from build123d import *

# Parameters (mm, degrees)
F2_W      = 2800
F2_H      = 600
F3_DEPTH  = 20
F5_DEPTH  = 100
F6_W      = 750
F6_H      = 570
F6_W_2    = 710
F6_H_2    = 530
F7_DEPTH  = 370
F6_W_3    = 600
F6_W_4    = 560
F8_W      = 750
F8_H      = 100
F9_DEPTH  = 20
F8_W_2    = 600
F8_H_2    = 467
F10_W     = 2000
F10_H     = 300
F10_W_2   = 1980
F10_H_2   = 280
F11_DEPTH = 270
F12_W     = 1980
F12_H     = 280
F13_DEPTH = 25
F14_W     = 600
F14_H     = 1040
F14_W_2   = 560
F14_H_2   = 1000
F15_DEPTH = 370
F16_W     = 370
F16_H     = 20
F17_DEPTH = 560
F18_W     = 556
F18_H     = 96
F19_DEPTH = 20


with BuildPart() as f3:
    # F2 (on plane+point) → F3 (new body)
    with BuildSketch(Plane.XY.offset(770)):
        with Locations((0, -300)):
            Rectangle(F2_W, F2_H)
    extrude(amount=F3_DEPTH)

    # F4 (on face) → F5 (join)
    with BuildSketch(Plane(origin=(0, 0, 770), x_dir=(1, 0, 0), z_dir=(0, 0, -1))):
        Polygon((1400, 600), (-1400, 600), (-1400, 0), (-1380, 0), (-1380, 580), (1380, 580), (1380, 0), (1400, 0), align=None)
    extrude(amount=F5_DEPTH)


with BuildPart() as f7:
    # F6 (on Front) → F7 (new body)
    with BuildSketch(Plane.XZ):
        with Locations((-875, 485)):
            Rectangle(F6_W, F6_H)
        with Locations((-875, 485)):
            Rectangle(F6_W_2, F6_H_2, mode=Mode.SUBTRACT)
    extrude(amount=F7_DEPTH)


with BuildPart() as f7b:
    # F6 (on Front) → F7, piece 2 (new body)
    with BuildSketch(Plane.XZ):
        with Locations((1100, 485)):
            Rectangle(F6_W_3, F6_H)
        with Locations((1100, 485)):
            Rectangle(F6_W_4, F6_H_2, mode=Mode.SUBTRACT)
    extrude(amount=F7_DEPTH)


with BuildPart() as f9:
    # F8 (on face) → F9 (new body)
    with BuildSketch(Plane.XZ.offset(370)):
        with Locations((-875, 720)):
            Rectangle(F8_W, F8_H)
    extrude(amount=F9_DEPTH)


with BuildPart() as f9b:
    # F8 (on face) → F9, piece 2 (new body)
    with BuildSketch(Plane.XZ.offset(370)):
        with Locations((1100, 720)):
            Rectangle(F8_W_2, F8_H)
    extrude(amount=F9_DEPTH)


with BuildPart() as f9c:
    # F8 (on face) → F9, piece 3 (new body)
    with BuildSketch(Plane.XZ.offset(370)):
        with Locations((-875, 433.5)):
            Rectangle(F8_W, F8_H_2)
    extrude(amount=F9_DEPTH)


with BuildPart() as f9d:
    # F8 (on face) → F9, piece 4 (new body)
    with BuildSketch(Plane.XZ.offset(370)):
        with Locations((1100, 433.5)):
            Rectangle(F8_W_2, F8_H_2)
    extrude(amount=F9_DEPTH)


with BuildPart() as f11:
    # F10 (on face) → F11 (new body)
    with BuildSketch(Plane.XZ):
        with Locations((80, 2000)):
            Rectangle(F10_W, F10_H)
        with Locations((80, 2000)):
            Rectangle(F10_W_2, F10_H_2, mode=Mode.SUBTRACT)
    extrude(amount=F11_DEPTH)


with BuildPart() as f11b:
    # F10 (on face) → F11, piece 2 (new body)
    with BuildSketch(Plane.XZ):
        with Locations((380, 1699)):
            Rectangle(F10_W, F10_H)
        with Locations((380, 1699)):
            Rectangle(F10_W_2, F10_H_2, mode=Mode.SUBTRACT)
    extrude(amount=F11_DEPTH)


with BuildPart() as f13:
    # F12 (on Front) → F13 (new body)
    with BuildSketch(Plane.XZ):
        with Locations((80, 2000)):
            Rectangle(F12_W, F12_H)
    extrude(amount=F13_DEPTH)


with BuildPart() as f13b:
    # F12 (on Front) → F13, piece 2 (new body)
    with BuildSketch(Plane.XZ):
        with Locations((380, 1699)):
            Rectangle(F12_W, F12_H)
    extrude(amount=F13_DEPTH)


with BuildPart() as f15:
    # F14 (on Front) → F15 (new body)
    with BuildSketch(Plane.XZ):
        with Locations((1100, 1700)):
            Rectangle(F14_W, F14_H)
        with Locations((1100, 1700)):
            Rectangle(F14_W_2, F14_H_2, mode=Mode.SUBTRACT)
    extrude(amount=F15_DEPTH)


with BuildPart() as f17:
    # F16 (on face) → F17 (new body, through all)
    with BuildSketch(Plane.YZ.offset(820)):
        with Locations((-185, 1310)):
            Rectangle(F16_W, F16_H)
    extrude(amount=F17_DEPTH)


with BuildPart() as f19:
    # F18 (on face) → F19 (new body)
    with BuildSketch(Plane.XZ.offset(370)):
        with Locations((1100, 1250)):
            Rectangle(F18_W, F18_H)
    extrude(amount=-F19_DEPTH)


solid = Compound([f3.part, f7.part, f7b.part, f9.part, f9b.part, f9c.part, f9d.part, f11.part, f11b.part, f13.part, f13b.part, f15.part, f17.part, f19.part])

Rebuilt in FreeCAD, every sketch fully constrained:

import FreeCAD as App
import Part
import Sketcher
from FreeCAD import Vector


def add_polygon(sketch, points):
    """Adds a closed chain of lines whose ends are joined by coincident constraints."""
    first, n = sketch.GeometryCount, len(points)
    for a, b in zip(points, points[1:] + points[:1]):
        sketch.addGeometry(Part.LineSegment(App.Vector(*a, 0), App.Vector(*b, 0)), False)
    for i in range(n):
        sketch.addConstraint(Sketcher.Constraint("Coincident", first + i, 2, first + (i + 1) % n, 1))

doc = App.newDocument("Part")
body = doc.addObject("PartDesign::Body", "Body")

# Sketch on XY plane
sketch1 = body.newObject("Sketcher::SketchObject", "Sketch")
sketch1.AttachmentSupport = (doc.getObject("XY_Plane"), [""])
sketch1.MapMode = "FlatFace"
sketch1.AttachmentOffset = App.Placement(Vector(0, 0, 770), App.Rotation())
add_polygon(sketch1, [(-1400, 0), (-1400, -600), (1400, -600), (1400, 0)])  # lines 0-3
sketch1.addConstraint(Sketcher.Constraint("Vertical", 0))
sketch1.addConstraint(Sketcher.Constraint("Horizontal", 1))
sketch1.addConstraint(Sketcher.Constraint("Vertical", 2))
sketch1.addConstraint(Sketcher.Constraint("Horizontal", 3))
sketch1.addConstraint(Sketcher.Constraint("Symmetric", 2, 2, 3, 2, -1, 1))
sketch1.addConstraint(Sketcher.Constraint("DistanceX", 1, 1, 1, 2, 2800.0))
sketch1.addConstraint(Sketcher.Constraint("DistanceY", 0, 2, 0, 1, 600.0))
pad1 = body.newObject("PartDesign::Pad", "Pad")
pad1.Profile = sketch1
pad1.Length = 20

# Sketch on XY plane
sketch2 = body.newObject("Sketcher::SketchObject", "Sketch001")
sketch2.AttachmentSupport = (doc.getObject("XY_Plane"), [""])
sketch2.MapMode = "FlatFace"
sketch2.AttachmentOffset = App.Placement(Vector(0, 0, 770), App.Rotation())
add_polygon(sketch2, [(1400, -600), (-1400, -600), (-1400, 0), (-1380, 0), (-1380, -580), (1380, -580), (1380, 0), (1400, 0)])  # lines 0-7
sketch2.addConstraint(Sketcher.Constraint("Horizontal", 0))
sketch2.addConstraint(Sketcher.Constraint("Vertical", 1))
sketch2.addConstraint(Sketcher.Constraint("Horizontal", 2))
sketch2.addConstraint(Sketcher.Constraint("Vertical", 3))
sketch2.addConstraint(Sketcher.Constraint("Horizontal", 4))
sketch2.addConstraint(Sketcher.Constraint("Vertical", 5))
sketch2.addConstraint(Sketcher.Constraint("Horizontal", 6))
sketch2.addConstraint(Sketcher.Constraint("Vertical", 7))
sketch2.addConstraint(Sketcher.Constraint("Symmetric", 2, 2, 5, 2, -1, 1))
sketch2.addConstraint(Sketcher.Constraint("Symmetric", 1, 2, 6, 2, -2))
sketch2.addConstraint(Sketcher.Constraint("DistanceX", 0, 2, 0, 1, 2800.0))
sketch2.addConstraint(Sketcher.Constraint("DistanceX", 2, 1, 2, 2, 20.0))
sketch2.addConstraint(Sketcher.Constraint("DistanceY", 1, 1, 1, 2, 600.0))
sketch2.addConstraint(Sketcher.Constraint("DistanceY", 3, 2, 3, 1, 580.0))
pad2 = body.newObject("PartDesign::Pad", "Pad001")
pad2.Profile = sketch2
pad2.Length = 100
pad2.Reversed = True
body2 = doc.addObject("PartDesign::Body", "Body001")

# Sketch on XZ plane
sketch3 = body2.newObject("Sketcher::SketchObject", "Sketch002")
sketch3.AttachmentSupport = (doc.getObject("XZ_Plane001"), [""])
sketch3.MapMode = "FlatFace"
add_polygon(sketch3, [(-1250, 770), (-1250, 200), (-500, 200), (-500, 770)])  # lines 0-3
add_polygon(sketch3, [(-520, 220), (-1230, 220), (-1230, 750), (-520, 750)])  # lines 4-7
sketch3.addConstraint(Sketcher.Constraint("Vertical", 0))
sketch3.addConstraint(Sketcher.Constraint("Horizontal", 1))
sketch3.addConstraint(Sketcher.Constraint("Vertical", 2))
sketch3.addConstraint(Sketcher.Constraint("Horizontal", 3))
sketch3.addConstraint(Sketcher.Constraint("Horizontal", 4))
sketch3.addConstraint(Sketcher.Constraint("Vertical", 5))
sketch3.addConstraint(Sketcher.Constraint("Horizontal", 6))
sketch3.addConstraint(Sketcher.Constraint("Vertical", 7))
sketch3.addConstraint(Sketcher.Constraint("DistanceX", 1, 1, 1, 2, 750.0))
sketch3.addConstraint(Sketcher.Constraint("DistanceX", 4, 2, 4, 1, 710.0))
sketch3.addConstraint(Sketcher.Constraint("DistanceY", 0, 2, 0, 1, 570.0))
sketch3.addConstraint(Sketcher.Constraint("DistanceY", 5, 1, 5, 2, 530.0))
sketch3.addConstraint(Sketcher.Constraint("DistanceX", 0, 2, -1, 1, 1250.0))
sketch3.addConstraint(Sketcher.Constraint("DistanceY", -1, 1, 0, 2, 200.0))
sketch3.addConstraint(Sketcher.Constraint("DistanceX", 4, 2, -1, 1, 1230.0))
sketch3.addConstraint(Sketcher.Constraint("DistanceY", -1, 1, 4, 2, 220.0))
pad3 = body2.newObject("PartDesign::Pad", "Pad002")
pad3.Profile = sketch3
pad3.Length = 370
body3 = doc.addObject("PartDesign::Body", "Body002")

# Sketch on XZ plane
sketch4 = body3.newObject("Sketcher::SketchObject", "Sketch003")
sketch4.AttachmentSupport = (doc.getObject("XZ_Plane002"), [""])
sketch4.MapMode = "FlatFace"
add_polygon(sketch4, [(800, 770), (800, 200), (1400, 200), (1400, 770)])  # lines 0-3
add_polygon(sketch4, [(1380, 220), (820, 220), (820, 750), (1380, 750)])  # lines 4-7
sketch4.addConstraint(Sketcher.Constraint("Vertical", 0))
sketch4.addConstraint(Sketcher.Constraint("Horizontal", 1))
sketch4.addConstraint(Sketcher.Constraint("Vertical", 2))
sketch4.addConstraint(Sketcher.Constraint("Horizontal", 3))
sketch4.addConstraint(Sketcher.Constraint("Horizontal", 4))
sketch4.addConstraint(Sketcher.Constraint("Vertical", 5))
sketch4.addConstraint(Sketcher.Constraint("Horizontal", 6))
sketch4.addConstraint(Sketcher.Constraint("Vertical", 7))
sketch4.addConstraint(Sketcher.Constraint("DistanceX", 1, 1, 1, 2, 600.0))
sketch4.addConstraint(Sketcher.Constraint("DistanceX", 4, 2, 4, 1, 560.0))
sketch4.addConstraint(Sketcher.Constraint("DistanceY", 0, 2, 0, 1, 570.0))
sketch4.addConstraint(Sketcher.Constraint("DistanceY", 5, 1, 5, 2, 530.0))
sketch4.addConstraint(Sketcher.Constraint("DistanceX", -1, 1, 0, 2, 800.0))
sketch4.addConstraint(Sketcher.Constraint("DistanceY", -1, 1, 0, 2, 200.0))
sketch4.addConstraint(Sketcher.Constraint("DistanceX", -1, 1, 4, 2, 820.0))
sketch4.addConstraint(Sketcher.Constraint("DistanceY", -1, 1, 4, 2, 220.0))
pad4 = body3.newObject("PartDesign::Pad", "Pad003")
pad4.Profile = sketch4
pad4.Length = 370
body4 = doc.addObject("PartDesign::Body", "Body003")

# Sketch on XZ plane
sketch5 = body4.newObject("Sketcher::SketchObject", "Sketch004")
sketch5.AttachmentSupport = (doc.getObject("XZ_Plane003"), [""])
sketch5.MapMode = "FlatFace"
sketch5.AttachmentOffset = App.Placement(Vector(0, 0, 370), App.Rotation())
add_polygon(sketch5, [(-1250, 770), (-1250, 670), (-500, 670), (-500, 770)])  # lines 0-3
sketch5.addConstraint(Sketcher.Constraint("Vertical", 0))
sketch5.addConstraint(Sketcher.Constraint("Horizontal", 1))
sketch5.addConstraint(Sketcher.Constraint("Vertical", 2))
sketch5.addConstraint(Sketcher.Constraint("Horizontal", 3))
sketch5.addConstraint(Sketcher.Constraint("DistanceX", 1, 1, 1, 2, 750.0))
sketch5.addConstraint(Sketcher.Constraint("DistanceY", 0, 2, 0, 1, 100.0))
sketch5.addConstraint(Sketcher.Constraint("DistanceX", 0, 2, -1, 1, 1250.0))
sketch5.addConstraint(Sketcher.Constraint("DistanceY", -1, 1, 0, 2, 670.0))
pad5 = body4.newObject("PartDesign::Pad", "Pad004")
pad5.Profile = sketch5
pad5.Length = 20
body5 = doc.addObject("PartDesign::Body", "Body004")

# Sketch on XZ plane
sketch6 = body5.newObject("Sketcher::SketchObject", "Sketch005")
sketch6.AttachmentSupport = (doc.getObject("XZ_Plane004"), [""])
sketch6.MapMode = "FlatFace"
sketch6.AttachmentOffset = App.Placement(Vector(0, 0, 370), App.Rotation())
add_polygon(sketch6, [(800, 770), (800, 670), (1400, 670), (1400, 770)])  # lines 0-3
sketch6.addConstraint(Sketcher.Constraint("Vertical", 0))
sketch6.addConstraint(Sketcher.Constraint("Horizontal", 1))
sketch6.addConstraint(Sketcher.Constraint("Vertical", 2))
sketch6.addConstraint(Sketcher.Constraint("Horizontal", 3))
sketch6.addConstraint(Sketcher.Constraint("DistanceX", 1, 1, 1, 2, 600.0))
sketch6.addConstraint(Sketcher.Constraint("DistanceY", 0, 2, 0, 1, 100.0))
sketch6.addConstraint(Sketcher.Constraint("DistanceX", -1, 1, 0, 2, 800.0))
sketch6.addConstraint(Sketcher.Constraint("DistanceY", -1, 1, 0, 2, 670.0))
pad6 = body5.newObject("PartDesign::Pad", "Pad005")
pad6.Profile = sketch6
pad6.Length = 20
body6 = doc.addObject("PartDesign::Body", "Body005")

# Sketch on XZ plane
sketch7 = body6.newObject("Sketcher::SketchObject", "Sketch006")
sketch7.AttachmentSupport = (doc.getObject("XZ_Plane005"), [""])
sketch7.MapMode = "FlatFace"
sketch7.AttachmentOffset = App.Placement(Vector(0, 0, 370), App.Rotation())
add_polygon(sketch7, [(-1250, 667), (-1250, 200), (-500, 200), (-500, 667)])  # lines 0-3
sketch7.addConstraint(Sketcher.Constraint("Vertical", 0))
sketch7.addConstraint(Sketcher.Constraint("Horizontal", 1))
sketch7.addConstraint(Sketcher.Constraint("Vertical", 2))
sketch7.addConstraint(Sketcher.Constraint("Horizontal", 3))
sketch7.addConstraint(Sketcher.Constraint("DistanceX", 1, 1, 1, 2, 750.0))
sketch7.addConstraint(Sketcher.Constraint("DistanceY", 0, 2, 0, 1, 467.0))
sketch7.addConstraint(Sketcher.Constraint("DistanceX", 0, 2, -1, 1, 1250.0))
sketch7.addConstraint(Sketcher.Constraint("DistanceY", -1, 1, 0, 2, 200.0))
pad7 = body6.newObject("PartDesign::Pad", "Pad006")
pad7.Profile = sketch7
pad7.Length = 20
body7 = doc.addObject("PartDesign::Body", "Body006")

# Sketch on XZ plane
sketch8 = body7.newObject("Sketcher::SketchObject", "Sketch007")
sketch8.AttachmentSupport = (doc.getObject("XZ_Plane006"), [""])
sketch8.MapMode = "FlatFace"
sketch8.AttachmentOffset = App.Placement(Vector(0, 0, 370), App.Rotation())
add_polygon(sketch8, [(800, 667), (800, 200), (1400, 200), (1400, 667)])  # lines 0-3
sketch8.addConstraint(Sketcher.Constraint("Vertical", 0))
sketch8.addConstraint(Sketcher.Constraint("Horizontal", 1))
sketch8.addConstraint(Sketcher.Constraint("Vertical", 2))
sketch8.addConstraint(Sketcher.Constraint("Horizontal", 3))
sketch8.addConstraint(Sketcher.Constraint("DistanceX", 1, 1, 1, 2, 600.0))
sketch8.addConstraint(Sketcher.Constraint("DistanceY", 0, 2, 0, 1, 467.0))
sketch8.addConstraint(Sketcher.Constraint("DistanceX", -1, 1, 0, 2, 800.0))
sketch8.addConstraint(Sketcher.Constraint("DistanceY", -1, 1, 0, 2, 200.0))
pad8 = body7.newObject("PartDesign::Pad", "Pad007")
pad8.Profile = sketch8
pad8.Length = 20
body8 = doc.addObject("PartDesign::Body", "Body007")

# Sketch on XZ plane
sketch9 = body8.newObject("Sketcher::SketchObject", "Sketch008")
sketch9.AttachmentSupport = (doc.getObject("XZ_Plane007"), [""])
sketch9.MapMode = "FlatFace"
add_polygon(sketch9, [(-920, 2150), (-920, 1850), (1080, 1850), (1080, 2150)])  # lines 0-3
add_polygon(sketch9, [(1070, 1860), (-910, 1860), (-910, 2140), (1070, 2140)])  # lines 4-7
sketch9.addConstraint(Sketcher.Constraint("Vertical", 0))
sketch9.addConstraint(Sketcher.Constraint("Horizontal", 1))
sketch9.addConstraint(Sketcher.Constraint("Vertical", 2))
sketch9.addConstraint(Sketcher.Constraint("Horizontal", 3))
sketch9.addConstraint(Sketcher.Constraint("Horizontal", 4))
sketch9.addConstraint(Sketcher.Constraint("Vertical", 5))
sketch9.addConstraint(Sketcher.Constraint("Horizontal", 6))
sketch9.addConstraint(Sketcher.Constraint("Vertical", 7))
sketch9.addConstraint(Sketcher.Constraint("DistanceX", 1, 1, 1, 2, 2000.0))
sketch9.addConstraint(Sketcher.Constraint("DistanceX", 4, 2, 4, 1, 1980.0))
sketch9.addConstraint(Sketcher.Constraint("DistanceY", 0, 2, 0, 1, 300.0))
sketch9.addConstraint(Sketcher.Constraint("DistanceY", 5, 1, 5, 2, 280.0))
sketch9.addConstraint(Sketcher.Constraint("DistanceX", 0, 2, -1, 1, 920.0))
sketch9.addConstraint(Sketcher.Constraint("DistanceY", -1, 1, 0, 2, 1850.0))
sketch9.addConstraint(Sketcher.Constraint("DistanceX", 4, 2, -1, 1, 910.0))
sketch9.addConstraint(Sketcher.Constraint("DistanceY", -1, 1, 4, 2, 1860.0))
pad9 = body8.newObject("PartDesign::Pad", "Pad008")
pad9.Profile = sketch9
pad9.Length = 270
body9 = doc.addObject("PartDesign::Body", "Body008")

# Sketch on XZ plane
sketch10 = body9.newObject("Sketcher::SketchObject", "Sketch009")
sketch10.AttachmentSupport = (doc.getObject("XZ_Plane008"), [""])
sketch10.MapMode = "FlatFace"
add_polygon(sketch10, [(-620, 1849), (-620, 1549), (1380, 1549), (1380, 1849)])  # lines 0-3
add_polygon(sketch10, [(1370, 1559), (-610, 1559), (-610, 1839), (1370, 1839)])  # lines 4-7
sketch10.addConstraint(Sketcher.Constraint("Vertical", 0))
sketch10.addConstraint(Sketcher.Constraint("Horizontal", 1))
sketch10.addConstraint(Sketcher.Constraint("Vertical", 2))
sketch10.addConstraint(Sketcher.Constraint("Horizontal", 3))
sketch10.addConstraint(Sketcher.Constraint("Horizontal", 4))
sketch10.addConstraint(Sketcher.Constraint("Vertical", 5))
sketch10.addConstraint(Sketcher.Constraint("Horizontal", 6))
sketch10.addConstraint(Sketcher.Constraint("Vertical", 7))
sketch10.addConstraint(Sketcher.Constraint("DistanceX", 1, 1, 1, 2, 2000.0))
sketch10.addConstraint(Sketcher.Constraint("DistanceX", 4, 2, 4, 1, 1980.0))
sketch10.addConstraint(Sketcher.Constraint("DistanceY", 0, 2, 0, 1, 300.0))
sketch10.addConstraint(Sketcher.Constraint("DistanceY", 5, 1, 5, 2, 280.0))
sketch10.addConstraint(Sketcher.Constraint("DistanceX", 0, 2, -1, 1, 620.0))
sketch10.addConstraint(Sketcher.Constraint("DistanceY", -1, 1, 0, 2, 1549.0))
sketch10.addConstraint(Sketcher.Constraint("DistanceX", 4, 2, -1, 1, 610.0))
sketch10.addConstraint(Sketcher.Constraint("DistanceY", -1, 1, 4, 2, 1559.0))
pad10 = body9.newObject("PartDesign::Pad", "Pad009")
pad10.Profile = sketch10
pad10.Length = 270
body10 = doc.addObject("PartDesign::Body", "Body009")

# Sketch on XZ plane
sketch11 = body10.newObject("Sketcher::SketchObject", "Sketch010")
sketch11.AttachmentSupport = (doc.getObject("XZ_Plane009"), [""])
sketch11.MapMode = "FlatFace"
add_polygon(sketch11, [(-910, 2140), (-910, 1860), (1070, 1860), (1070, 2140)])  # lines 0-3
sketch11.addConstraint(Sketcher.Constraint("Vertical", 0))
sketch11.addConstraint(Sketcher.Constraint("Horizontal", 1))
sketch11.addConstraint(Sketcher.Constraint("Vertical", 2))
sketch11.addConstraint(Sketcher.Constraint("Horizontal", 3))
sketch11.addConstraint(Sketcher.Constraint("DistanceX", 1, 1, 1, 2, 1980.0))
sketch11.addConstraint(Sketcher.Constraint("DistanceY", 0, 2, 0, 1, 280.0))
sketch11.addConstraint(Sketcher.Constraint("DistanceX", 0, 2, -1, 1, 910.0))
sketch11.addConstraint(Sketcher.Constraint("DistanceY", -1, 1, 0, 2, 1860.0))
pad11 = body10.newObject("PartDesign::Pad", "Pad010")
pad11.Profile = sketch11
pad11.Length = 25
body11 = doc.addObject("PartDesign::Body", "Body010")

# Sketch on XZ plane
sketch12 = body11.newObject("Sketcher::SketchObject", "Sketch011")
sketch12.AttachmentSupport = (doc.getObject("XZ_Plane010"), [""])
sketch12.MapMode = "FlatFace"
add_polygon(sketch12, [(-610, 1839), (-610, 1559), (1370, 1559), (1370, 1839)])  # lines 0-3
sketch12.addConstraint(Sketcher.Constraint("Vertical", 0))
sketch12.addConstraint(Sketcher.Constraint("Horizontal", 1))
sketch12.addConstraint(Sketcher.Constraint("Vertical", 2))
sketch12.addConstraint(Sketcher.Constraint("Horizontal", 3))
sketch12.addConstraint(Sketcher.Constraint("DistanceX", 1, 1, 1, 2, 1980.0))
sketch12.addConstraint(Sketcher.Constraint("DistanceY", 0, 2, 0, 1, 280.0))
sketch12.addConstraint(Sketcher.Constraint("DistanceX", 0, 2, -1, 1, 610.0))
sketch12.addConstraint(Sketcher.Constraint("DistanceY", -1, 1, 0, 2, 1559.0))
pad12 = body11.newObject("PartDesign::Pad", "Pad011")
pad12.Profile = sketch12
pad12.Length = 25
body12 = doc.addObject("PartDesign::Body", "Body011")

# Sketch on XZ plane
sketch13 = body12.newObject("Sketcher::SketchObject", "Sketch012")
sketch13.AttachmentSupport = (doc.getObject("XZ_Plane011"), [""])
sketch13.MapMode = "FlatFace"
add_polygon(sketch13, [(800, 2220), (800, 1180), (1400, 1180), (1400, 2220)])  # lines 0-3
add_polygon(sketch13, [(1380, 1200), (820, 1200), (820, 2200), (1380, 2200)])  # lines 4-7
sketch13.addConstraint(Sketcher.Constraint("Vertical", 0))
sketch13.addConstraint(Sketcher.Constraint("Horizontal", 1))
sketch13.addConstraint(Sketcher.Constraint("Vertical", 2))
sketch13.addConstraint(Sketcher.Constraint("Horizontal", 3))
sketch13.addConstraint(Sketcher.Constraint("Horizontal", 4))
sketch13.addConstraint(Sketcher.Constraint("Vertical", 5))
sketch13.addConstraint(Sketcher.Constraint("Horizontal", 6))
sketch13.addConstraint(Sketcher.Constraint("Vertical", 7))
sketch13.addConstraint(Sketcher.Constraint("DistanceX", 1, 1, 1, 2, 600.0))
sketch13.addConstraint(Sketcher.Constraint("DistanceX", 4, 2, 4, 1, 560.0))
sketch13.addConstraint(Sketcher.Constraint("DistanceY", 0, 2, 0, 1, 1040.0))
sketch13.addConstraint(Sketcher.Constraint("DistanceY", 5, 1, 5, 2, 1000.0))
sketch13.addConstraint(Sketcher.Constraint("DistanceX", -1, 1, 0, 2, 800.0))
sketch13.addConstraint(Sketcher.Constraint("DistanceY", -1, 1, 0, 2, 1180.0))
sketch13.addConstraint(Sketcher.Constraint("DistanceX", -1, 1, 4, 2, 820.0))
sketch13.addConstraint(Sketcher.Constraint("DistanceY", -1, 1, 4, 2, 1200.0))
pad13 = body12.newObject("PartDesign::Pad", "Pad012")
pad13.Profile = sketch13
pad13.Length = 370
body13 = doc.addObject("PartDesign::Body", "Body012")

# Sketch on YZ plane
sketch14 = body13.newObject("Sketcher::SketchObject", "Sketch013")
sketch14.AttachmentSupport = (doc.getObject("YZ_Plane012"), [""])
sketch14.MapMode = "FlatFace"
sketch14.AttachmentOffset = App.Placement(Vector(0, 0, 820), App.Rotation())
add_polygon(sketch14, [(-370, 1320), (-370, 1300), (0, 1300), (0, 1320)])  # lines 0-3
sketch14.addConstraint(Sketcher.Constraint("Vertical", 0))
sketch14.addConstraint(Sketcher.Constraint("Horizontal", 1))
sketch14.addConstraint(Sketcher.Constraint("Vertical", 2))
sketch14.addConstraint(Sketcher.Constraint("Horizontal", 3))
sketch14.addConstraint(Sketcher.Constraint("PointOnObject", 1, 2, -2))
sketch14.addConstraint(Sketcher.Constraint("DistanceX", 1, 1, 1, 2, 370.0))
sketch14.addConstraint(Sketcher.Constraint("DistanceY", 0, 2, 0, 1, 20.0))
sketch14.addConstraint(Sketcher.Constraint("DistanceY", -1, 1, 0, 2, 1300.0))
pad14 = body13.newObject("PartDesign::Pad", "Pad013")
pad14.Profile = sketch14
pad14.Length = 560
body14 = doc.addObject("PartDesign::Body", "Body013")

# Sketch on XZ plane
sketch15 = body14.newObject("Sketcher::SketchObject", "Sketch014")
sketch15.AttachmentSupport = (doc.getObject("XZ_Plane013"), [""])
sketch15.MapMode = "FlatFace"
sketch15.AttachmentOffset = App.Placement(Vector(0, 0, 370), App.Rotation())
add_polygon(sketch15, [(822, 1298), (822, 1202), (1378, 1202), (1378, 1298)])  # lines 0-3
sketch15.addConstraint(Sketcher.Constraint("Vertical", 0))
sketch15.addConstraint(Sketcher.Constraint("Horizontal", 1))
sketch15.addConstraint(Sketcher.Constraint("Vertical", 2))
sketch15.addConstraint(Sketcher.Constraint("Horizontal", 3))
sketch15.addConstraint(Sketcher.Constraint("DistanceX", 1, 1, 1, 2, 556.0))
sketch15.addConstraint(Sketcher.Constraint("DistanceY", 0, 2, 0, 1, 96.0))
sketch15.addConstraint(Sketcher.Constraint("DistanceX", -1, 1, 0, 2, 822.0))
sketch15.addConstraint(Sketcher.Constraint("DistanceY", -1, 1, 0, 2, 1202.0))
pad15 = body14.newObject("PartDesign::Pad", "Pad014")
pad15.Profile = sketch15
pad15.Length = 20
pad15.Reversed = True

doc.recompute()
